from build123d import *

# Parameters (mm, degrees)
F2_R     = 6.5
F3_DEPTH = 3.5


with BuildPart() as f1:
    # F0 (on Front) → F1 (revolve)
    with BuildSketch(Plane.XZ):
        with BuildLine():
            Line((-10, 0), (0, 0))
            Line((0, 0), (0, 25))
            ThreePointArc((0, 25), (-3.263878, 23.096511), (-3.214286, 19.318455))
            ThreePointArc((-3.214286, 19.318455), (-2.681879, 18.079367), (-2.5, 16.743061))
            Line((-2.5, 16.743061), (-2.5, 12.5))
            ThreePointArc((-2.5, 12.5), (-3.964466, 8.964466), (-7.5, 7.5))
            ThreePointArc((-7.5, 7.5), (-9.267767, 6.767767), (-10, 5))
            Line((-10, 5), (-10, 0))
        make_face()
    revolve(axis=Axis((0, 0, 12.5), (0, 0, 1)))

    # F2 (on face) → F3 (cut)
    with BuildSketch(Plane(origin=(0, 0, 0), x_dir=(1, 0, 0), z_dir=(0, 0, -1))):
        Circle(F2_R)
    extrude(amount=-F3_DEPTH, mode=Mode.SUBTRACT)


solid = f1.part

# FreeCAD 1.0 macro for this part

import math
import FreeCAD as App
import Part
import Sketcher

V = App.Vector
Q = App.Units.Quantity

doc = App.newDocument("Part")
body = doc.addObject("PartDesign::Body", "Body")

sketch1 = body.newObject("Sketcher::SketchObject", "Sketch")
sketch1.AttachmentSupport = (doc.getObject("XZ_Plane"), [""])
sketch1.MapMode = "FlatFace"
sketch1.addGeometry([
    Part.LineSegment(V(-10, 0, 0), V(0, 0, 0)),
    Part.LineSegment(V(0, 0, 0), V(0, 25, 0)),
    Part.ArcOfCircle(Part.Circle(V(-0.000001, 21.25, 0), V(0, 0, 1), 3.75), math.radians(89.999992), math.radians(211.00272)),
    Part.ArcOfCircle(Part.Circle(V(-7.499988, 16.743064, 0), V(0, 0, 1), 4.999988), math.radians(-0.000034), math.radians(31.002762)),
    Part.LineSegment(V(-2.5, 16.743061, 0), V(-2.5, 12.5, 0)),
    Part.ArcOfCircle(Part.Circle(V(-7.5, 12.5, 0), V(0, 0, 1), 5), math.radians(-90.000004), math.radians(0.000004)),
    Part.ArcOfCircle(Part.Circle(V(-7.5, 5, 0), V(0, 0, 1), 2.5), math.radians(89.999996), math.radians(180.000004)),
    Part.LineSegment(V(-10, 5, 0), V(-10, 0, 0)),
], False)
sketch1.addConstraint([
    Sketcher.Constraint("Coincident", 0, 2, 1, 1),
    Sketcher.Constraint("Coincident", 1, 2, 2, 1),
    Sketcher.Constraint("Tangent", 2, 2, 3, 2),
    Sketcher.Constraint("Tangent", 3, 1, 4, 1),
    Sketcher.Constraint("Tangent", 4, 2, 5, 2),
    Sketcher.Constraint("Tangent", 5, 1, 6, 1),
    Sketcher.Constraint("Tangent", 6, 2, 7, 1),
    Sketcher.Constraint("Coincident", 7, 2, 0, 1),
    Sketcher.Constraint("Horizontal", 0),
    Sketcher.Constraint("Vertical", 1),
    Sketcher.Constraint("Vertical", 4),
    Sketcher.Constraint("Vertical", 7),
    Sketcher.Constraint("Coincident", 0, 2, -1, 1),
    Sketcher.Constraint("PointOnObject", 2, 3, -2),
    Sketcher.Constraint("Vertical", 5, 3, 6, 3),
    Sketcher.Constraint("Radius", 5, Q("5 mm")),
    Sketcher.Constraint("Radius", 6, Q("2.5 mm")),
    Sketcher.Constraint("DistanceX", 0, 1, 0, 2, Q("10 mm")),
    Sketcher.Constraint("DistanceY", 1, 1, 1, 2, Q("25 mm")),
    Sketcher.Constraint("DistanceY", 7, 2, 7, 1, Q("5 mm")),
    Sketcher.Constraint("Radius", 2, Q("3.75 mm")),
    Sketcher.Constraint("Radius", 3, Q("4.999988 mm")),
])
revolution = body.newObject("PartDesign::Revolution", "Revolution")
revolution.Profile = sketch1
revolution.ReferenceAxis = (sketch1, ["V_Axis"])
revolution.Angle = 360

sketch2 = body.newObject("Sketcher::SketchObject", "Sketch001")
sketch2.AttachmentSupport = (doc.getObject("XY_Plane"), [""])
sketch2.MapMode = "FlatFace"
sketch2.addGeometry(Part.Circle(V(0, 0, 0), V(0, 0, 1), 6.5), False)
sketch2.addConstraint([
    Sketcher.Constraint("Coincident", 0, 3, -1, 1),
    Sketcher.Constraint("Diameter", 0, Q("13 mm")),
])
pocket1 = body.newObject("PartDesign::Pocket", "Pocket")
pocket1.Profile = sketch2
pocket1.Length = 3.5
pocket1.Reversed = True

doc.recompute()
